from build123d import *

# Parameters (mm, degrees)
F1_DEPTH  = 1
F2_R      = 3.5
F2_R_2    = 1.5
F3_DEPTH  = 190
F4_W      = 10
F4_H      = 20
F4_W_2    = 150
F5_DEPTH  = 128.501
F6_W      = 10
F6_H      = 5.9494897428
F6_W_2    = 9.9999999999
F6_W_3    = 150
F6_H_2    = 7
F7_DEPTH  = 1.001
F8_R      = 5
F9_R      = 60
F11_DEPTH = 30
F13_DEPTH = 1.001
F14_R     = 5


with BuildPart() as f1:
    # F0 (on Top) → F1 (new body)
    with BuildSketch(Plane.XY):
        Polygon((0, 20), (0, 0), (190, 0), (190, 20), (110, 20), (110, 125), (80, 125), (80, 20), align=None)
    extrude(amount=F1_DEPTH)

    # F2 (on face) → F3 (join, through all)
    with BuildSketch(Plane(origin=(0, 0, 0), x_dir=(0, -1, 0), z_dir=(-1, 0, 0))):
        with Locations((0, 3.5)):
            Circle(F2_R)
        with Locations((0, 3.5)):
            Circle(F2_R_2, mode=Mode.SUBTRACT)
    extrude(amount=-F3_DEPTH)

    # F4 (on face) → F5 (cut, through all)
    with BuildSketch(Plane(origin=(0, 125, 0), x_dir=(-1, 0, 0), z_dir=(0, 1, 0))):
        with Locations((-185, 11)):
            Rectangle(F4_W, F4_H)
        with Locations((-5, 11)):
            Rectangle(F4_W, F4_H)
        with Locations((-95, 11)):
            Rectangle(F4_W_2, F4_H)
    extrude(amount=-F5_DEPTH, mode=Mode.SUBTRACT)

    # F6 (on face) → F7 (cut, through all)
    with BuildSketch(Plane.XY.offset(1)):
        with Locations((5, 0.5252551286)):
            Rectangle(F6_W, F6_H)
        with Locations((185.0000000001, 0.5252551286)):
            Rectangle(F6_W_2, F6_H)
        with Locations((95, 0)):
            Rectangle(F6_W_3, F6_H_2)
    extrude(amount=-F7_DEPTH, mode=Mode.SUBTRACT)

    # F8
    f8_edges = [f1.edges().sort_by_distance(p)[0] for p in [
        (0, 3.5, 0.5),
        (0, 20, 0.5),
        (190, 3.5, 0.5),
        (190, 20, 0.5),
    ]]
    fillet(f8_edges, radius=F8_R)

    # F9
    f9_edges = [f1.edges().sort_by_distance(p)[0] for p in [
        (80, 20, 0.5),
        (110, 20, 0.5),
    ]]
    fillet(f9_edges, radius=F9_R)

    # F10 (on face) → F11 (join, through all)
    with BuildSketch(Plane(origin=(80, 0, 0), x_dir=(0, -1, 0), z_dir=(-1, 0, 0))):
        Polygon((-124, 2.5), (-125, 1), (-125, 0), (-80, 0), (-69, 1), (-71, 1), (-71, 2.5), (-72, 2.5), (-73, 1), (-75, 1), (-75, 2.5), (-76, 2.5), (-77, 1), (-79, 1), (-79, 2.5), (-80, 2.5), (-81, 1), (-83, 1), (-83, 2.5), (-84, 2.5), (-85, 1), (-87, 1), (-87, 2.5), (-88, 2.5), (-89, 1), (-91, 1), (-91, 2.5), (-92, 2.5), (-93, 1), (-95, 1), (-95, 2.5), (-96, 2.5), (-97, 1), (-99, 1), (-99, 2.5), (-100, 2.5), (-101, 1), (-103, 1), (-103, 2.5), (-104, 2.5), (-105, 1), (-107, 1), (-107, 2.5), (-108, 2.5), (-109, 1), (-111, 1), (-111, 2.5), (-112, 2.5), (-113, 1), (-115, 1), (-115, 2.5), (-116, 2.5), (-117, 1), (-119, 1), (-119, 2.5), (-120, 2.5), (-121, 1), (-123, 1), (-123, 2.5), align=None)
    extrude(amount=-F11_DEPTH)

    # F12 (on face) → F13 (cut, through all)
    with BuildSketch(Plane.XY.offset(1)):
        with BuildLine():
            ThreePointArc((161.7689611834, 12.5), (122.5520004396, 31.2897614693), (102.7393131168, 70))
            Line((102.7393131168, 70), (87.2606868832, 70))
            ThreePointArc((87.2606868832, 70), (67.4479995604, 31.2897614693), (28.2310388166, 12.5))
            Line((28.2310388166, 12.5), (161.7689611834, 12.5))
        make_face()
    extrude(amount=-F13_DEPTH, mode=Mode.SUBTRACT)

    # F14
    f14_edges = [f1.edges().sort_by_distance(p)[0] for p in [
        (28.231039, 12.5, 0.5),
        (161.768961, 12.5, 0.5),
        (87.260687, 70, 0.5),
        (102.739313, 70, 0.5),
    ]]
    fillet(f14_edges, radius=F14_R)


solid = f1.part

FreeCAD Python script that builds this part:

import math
import FreeCAD as App
import Part
import Sketcher


def edges_at(feature, points):
    """Names of the edges that pass closest to the given points."""
    edges = feature.Shape.Edges
    near = lambda p: min(range(len(edges)), key=lambda i: edges[i].distToShape(Part.Vertex(*p))[0])
    return sorted({f"Edge{near(p) + 1}" for p in points})

doc = App.newDocument("Part")
body = doc.addObject("PartDesign::Body", "Body")

sketch1 = doc.addObject("Sketcher::SketchObject", "Sketch")
body.addObject(sketch1)
sketch1.AttachmentSupport = (doc.XY_Plane, [""])
sketch1.MapMode = "FlatFace"
sketch1.addGeometry(Part.LineSegment(App.Vector(0, 20, 0), App.Vector(0, 0, 0)), False)
sketch1.addGeometry(Part.LineSegment(App.Vector(0, 0, 0), App.Vector(190, 0, 0)), False)
sketch1.addGeometry(Part.LineSegment(App.Vector(190, 0, 0), App.Vector(190, 20, 0)), False)
sketch1.addGeometry(Part.LineSegment(App.Vector(190, 20, 0), App.Vector(110, 20, 0)), False)
sketch1.addGeometry(Part.LineSegment(App.Vector(110, 20, 0), App.Vector(110, 125, 0)), False)
sketch1.addGeometry(Part.LineSegment(App.Vector(110, 125, 0), App.Vector(80, 125, 0)), False)
sketch1.addGeometry(Part.LineSegment(App.Vector(80, 125, 0), App.Vector(80, 20, 0)), False)
sketch1.addGeometry(Part.LineSegment(App.Vector(80, 20, 0), App.Vector(0, 20, 0)), False)
sketch1.addConstraint(Sketcher.Constraint("Coincident", 0, 2, 1, 1))
sketch1.addConstraint(Sketcher.Constraint("Coincident", 1, 2, 2, 1))
sketch1.addConstraint(Sketcher.Constraint("Coincident", 2, 2, 3, 1))
sketch1.addConstraint(Sketcher.Constraint("Coincident", 3, 2, 4, 1))
sketch1.addConstraint(Sketcher.Constraint("Coincident", 4, 2, 5, 1))
sketch1.addConstraint(Sketcher.Constraint("Coincident", 5, 2, 6, 1))
sketch1.addConstraint(Sketcher.Constraint("Coincident", 6, 2, 7, 1))
sketch1.addConstraint(Sketcher.Constraint("Coincident", 7, 2, 0, 1))
sketch1.addConstraint(Sketcher.Constraint("Vertical", 0))
sketch1.addConstraint(Sketcher.Constraint("Horizontal", 1))
sketch1.addConstraint(Sketcher.Constraint("Vertical", 2))
sketch1.addConstraint(Sketcher.Constraint("Horizontal", 3))
sketch1.addConstraint(Sketcher.Constraint("Vertical", 4))
sketch1.addConstraint(Sketcher.Constraint("Horizontal", 5))
sketch1.addConstraint(Sketcher.Constraint("Vertical", 6))
sketch1.addConstraint(Sketcher.Constraint("Horizontal", 7))
sketch1.addConstraint(Sketcher.Constraint("Coincident", 0, 2, -1, 1))
sketch1.addConstraint(Sketcher.Constraint("Horizontal", 3, 2, 6, 2))
sketch1.addConstraint(Sketcher.Constraint("Equal", 3, 7))
sketch1.addConstraint(Sketcher.Constraint("DistanceX", 1, 1, 1, 2, 190.0))
sketch1.addConstraint(Sketcher.Constraint("DistanceX", 3, 2, 3, 1, 80.0))
sketch1.addConstraint(Sketcher.Constraint("DistanceY", 0, 2, 0, 1, 20.0))
sketch1.addConstraint(Sketcher.Constraint("DistanceY", 4, 1, 4, 2, 105.0))
pad1 = doc.addObject("PartDesign::Pad", "Pad")
body.addObject(pad1)
pad1.Profile = sketch1
pad1.Length = 1

sketch2 = doc.addObject("Sketcher::SketchObject", "Sketch001")
body.addObject(sketch2)
sketch2.AttachmentSupport = (doc.YZ_Plane, [""])
sketch2.MapMode = "FlatFace"
sketch2.addGeometry(Part.Circle(App.Vector(0, 3.5, 0), App.Vector(0, 0, 1), 3.5), False)
sketch2.addGeometry(Part.Circle(App.Vector(0, 3.5, 0), App.Vector(0, 0, 1), 1.5), False)
sketch2.addConstraint(Sketcher.Constraint("Coincident", 1, 3, 0, 3))
sketch2.addConstraint(Sketcher.Constraint("PointOnObject", 0, 3, -2))
sketch2.addConstraint(Sketcher.Constraint("Diameter", 0, 7.0))
sketch2.addConstraint(Sketcher.Constraint("Diameter", 1, 3.0))
sketch2.addConstraint(Sketcher.Constraint("DistanceY", -1, 1, 0, 3, 3.5))
pad2 = doc.addObject("PartDesign::Pad", "Pad001")
body.addObject(pad2)
pad2.Profile = sketch2
pad2.Length = 190

sketch3 = doc.addObject("Sketcher::SketchObject", "Sketch002")
body.addObject(sketch3)
sketch3.AttachmentSupport = (doc.XZ_Plane, [""])
sketch3.MapMode = "FlatFace"
sketch3.AttachmentOffset = App.Placement(App.Vector(0, 0, -125), App.Rotation())
sketch3.addGeometry(Part.LineSegment(App.Vector(190, 21, 0), App.Vector(190, 1, 0)), False)
sketch3.addGeometry(Part.LineSegment(App.Vector(190, 1, 0), App.Vector(180, 1, 0)), False)
sketch3.addGeometry(Part.LineSegment(App.Vector(180, 1, 0), App.Vector(180, 21, 0)), False)
sketch3.addGeometry(Part.LineSegment(App.Vector(180, 21, 0), App.Vector(190, 21, 0)), False)
sketch3.addGeometry(Part.LineSegment(App.Vector(10, 21, 0), App.Vector(10, 1, 0)), False)
sketch3.addGeometry(Part.LineSegment(App.Vector(10, 1, 0), App.Vector(0, 1, 0)), False)
sketch3.addGeometry(Part.LineSegment(App.Vector(0, 1, 0), App.Vector(0, 21, 0)), False)
sketch3.addGeometry(Part.LineSegment(App.Vector(0, 21, 0), App.Vector(10, 21, 0)), False)
sketch3.addGeometry(Part.LineSegment(App.Vector(170, 21, 0), App.Vector(170, 1, 0)), False)
sketch3.addGeometry(Part.LineSegment(App.Vector(170, 1, 0), App.Vector(20, 1, 0)), False)
sketch3.addGeometry(Part.LineSegment(App.Vector(20, 1, 0), App.Vector(20, 21, 0)), False)
sketch3.addGeometry(Part.LineSegment(App.Vector(20, 21, 0), App.Vector(170, 21, 0)), False)
sketch3.addConstraint(Sketcher.Constraint("Coincident", 0, 2, 1, 1))
sketch3.addConstraint(Sketcher.Constraint("Coincident", 1, 2, 2, 1))
sketch3.addConstraint(Sketcher.Constraint("Coincident", 2, 2, 3, 1))
sketch3.addConstraint(Sketcher.Constraint("Coincident", 3, 2, 0, 1))
sketch3.addConstraint(Sketcher.Constraint("Coincident", 4, 2, 5, 1))
sketch3.addConstraint(Sketcher.Constraint("Coincident", 5, 2, 6, 1))
sketch3.addConstraint(Sketcher.Constraint("Coincident", 6, 2, 7, 1))
sketch3.addConstraint(Sketcher.Constraint("Coincident", 7, 2, 4, 1))
sketch3.addConstraint(Sketcher.Constraint("Coincident", 8, 2, 9, 1))
sketch3.addConstraint(Sketcher.Constraint("Coincident", 9, 2, 10, 1))
sketch3.addConstraint(Sketcher.Constraint("Coincident", 10, 2, 11, 1))
sketch3.addConstraint(Sketcher.Constraint("Coincident", 11, 2, 8, 1))
sketch3.addConstraint(Sketcher.Constraint("Vertical", 0))
sketch3.addConstraint(Sketcher.Constraint("Horizontal", 1))
sketch3.addConstraint(Sketcher.Constraint("Vertical", 2))
sketch3.addConstraint(Sketcher.Constraint("Horizontal", 3))
sketch3.addConstraint(Sketcher.Constraint("Vertical", 4))
sketch3.addConstraint(Sketcher.Constraint("Horizontal", 5))
sketch3.addConstraint(Sketcher.Constraint("Vertical", 6))
sketch3.addConstraint(Sketcher.Constraint("Horizontal", 7))
sketch3.addConstraint(Sketcher.Constraint("Vertical", 8))
sketch3.addConstraint(Sketcher.Constraint("Horizontal", 9))
sketch3.addConstraint(Sketcher.Constraint("Vertical", 10))
sketch3.addConstraint(Sketcher.Constraint("Horizontal", 11))
sketch3.addConstraint(Sketcher.Constraint("PointOnObject", 5, 2, -2))
sketch3.addConstraint(Sketcher.Constraint("Horizontal", 1, 2, 4, 2))
sketch3.addConstraint(Sketcher.Constraint("Horizontal", 3, 2, 6, 2))
sketch3.addConstraint(Sketcher.Constraint("Horizontal", 5, 2, 8, 2))
sketch3.addConstraint(Sketcher.Constraint("Horizontal", 7, 2, 10, 2))
sketch3.addConstraint(Sketcher.Constraint("Equal", 3, 5))
sketch3.addConstraint(Sketcher.Constraint("DistanceX", 1, 2, 1, 1, 10.0))
sketch3.addConstraint(Sketcher.Constraint("DistanceX", 9, 2, 9, 1, 150.0))
sketch3.addConstraint(Sketcher.Constraint("DistanceY", 0, 2, 0, 1, 20.0))
sketch3.addConstraint(Sketcher.Constraint("DistanceX", -1, 1, 0, 2, 190.0))
sketch3.addConstraint(Sketcher.Constraint("DistanceY", -1, 1, 0, 2, 1.0))
sketch3.addConstraint(Sketcher.Constraint("DistanceX", -1, 1, 8, 2, 170.0))
pocket1 = doc.addObject("PartDesign::Pocket", "Pocket")
body.addObject(pocket1)
pocket1.Profile = sketch3
pocket1.Type = "ThroughAll"
pocket1.Reversed = True

sketch4 = doc.addObject("Sketcher::SketchObject", "Sketch003")
body.addObject(sketch4)
sketch4.AttachmentSupport = (doc.XY_Plane, [""])
sketch4.MapMode = "FlatFace"
sketch4.AttachmentOffset = App.Placement(App.Vector(0, 0, 1), App.Rotation())
sketch4.addGeometry(Part.LineSegment(App.Vector(0, 4, 0), App.Vector(0, -2, 0)), False)
sketch4.addGeometry(Part.LineSegment(App.Vector(0, -2, 0), App.Vector(10, -2, 0)), False)
sketch4.addGeometry(Part.LineSegment(App.Vector(10, -2, 0), App.Vector(10, 4, 0)), False)
sketch4.addGeometry(Part.LineSegment(App.Vector(10, 4, 0), App.Vector(0, 4, 0)), False)
sketch4.addGeometry(Part.LineSegment(App.Vector(180, 4, 0), App.Vector(180, -2, 0)), False)
sketch4.addGeometry(Part.LineSegment(App.Vector(180, -2, 0), App.Vector(190, -2, 0)), False)
sketch4.addGeometry(Part.LineSegment(App.Vector(190, -2, 0), App.Vector(190, 4, 0)), False)
sketch4.addGeometry(Part.LineSegment(App.Vector(190, 4, 0), App.Vector(180, 4, 0)), False)
sketch4.addGeometry(Part.LineSegment(App.Vector(20, 4, 0), App.Vector(20, -4, 0)), False)
sketch4.addGeometry(Part.LineSegment(App.Vector(20, -4, 0), App.Vector(170, -4, 0)), False)
sketch4.addGeometry(Part.LineSegment(App.Vector(170, -4, 0), App.Vector(170, 4, 0)), False)
sketch4.addGeometry(Part.LineSegment(App.Vector(170, 4, 0), App.Vector(20, 4, 0)), False)
sketch4.addConstraint(Sketcher.Constraint("Coincident", 0, 2, 1, 1))
sketch4.addConstraint(Sketcher.Constraint("Coincident", 1, 2, 2, 1))
sketch4.addConstraint(Sketcher.Constraint("Coincident", 2, 2, 3, 1))
sketch4.addConstraint(Sketcher.Constraint("Coincident", 3, 2, 0, 1))
sketch4.addConstraint(Sketcher.Constraint("Coincident", 4, 2, 5, 1))
sketch4.addConstraint(Sketcher.Constraint("Coincident", 5, 2, 6, 1))
sketch4.addConstraint(Sketcher.Constraint("Coincident", 6, 2, 7, 1))
sketch4.addConstraint(Sketcher.Constraint("Coincident", 7, 2, 4, 1))
sketch4.addConstraint(Sketcher.Constraint("Coincident", 8, 2, 9, 1))
sketch4.addConstraint(Sketcher.Constraint("Coincident", 9, 2, 10, 1))
sketch4.addConstraint(Sketcher.Constraint("Coincident", 10, 2, 11, 1))
sketch4.addConstraint(Sketcher.Constraint("Coincident", 11, 2, 8, 1))
sketch4.addConstraint(Sketcher.Constraint("Vertical", 0))
sketch4.addConstraint(Sketcher.Constraint("Horizontal", 1))
sketch4.addConstraint(Sketcher.Constraint("Vertical", 2))
sketch4.addConstraint(Sketcher.Constraint("Horizontal", 3))
sketch4.addConstraint(Sketcher.Constraint("Vertical", 4))
sketch4.addConstraint(Sketcher.Constraint("Horizontal", 5))
sketch4.addConstraint(Sketcher.Constraint("Vertical", 6))
sketch4.addConstraint(Sketcher.Constraint("Horizontal", 7))
sketch4.addConstraint(Sketcher.Constraint("Vertical", 8))
sketch4.addConstraint(Sketcher.Constraint("Horizontal", 9))
sketch4.addConstraint(Sketcher.Constraint("Vertical", 10))
sketch4.addConstraint(Sketcher.Constraint("Horizontal", 11))
sketch4.addConstraint(Sketcher.Constraint("PointOnObject", 0, 2, -2))
sketch4.addConstraint(Sketcher.Constraint("Horizontal", 1, 2, 4, 2))
sketch4.addConstraint(Sketcher.Constraint("Horizontal", 3, 2, 6, 2))
sketch4.addConstraint(Sketcher.Constraint("Horizontal", 7, 2, 10, 2))
sketch4.addConstraint(Sketcher.Constraint("Equal", 3, 5))
sketch4.addConstraint(Sketcher.Constraint("DistanceX", 1, 1, 1, 2, 10.0))
sketch4.addConstraint(Sketcher.Constraint("DistanceX", 9, 1, 9, 2, 150.0))
sketch4.addConstraint(Sketcher.Constraint("DistanceY", 8, 2, 8, 1, 7.0))
sketch4.addConstraint(Sketcher.Constraint("DistanceX", -1, 1, 4, 2, 180.0))
sketch4.addConstraint(Sketcher.Constraint("DistanceX", -1, 1, 8, 2, 20.0))
sketch4.addConstraint(Sketcher.Constraint("DistanceY", -1, 1, 2, 2, 3.5))
sketch4.addConstraint(Sketcher.Constraint("DistanceY", 0, 2, 0, 1, 5.94949))
pocket2 = doc.addObject("PartDesign::Pocket", "Pocket001")
body.addObject(pocket2)
pocket2.Profile = sketch4
pocket2.Type = "ThroughAll"
doc.recompute()

fillet = doc.addObject("PartDesign::Fillet", "Fillet")
body.addObject(fillet)
fillet.Base = (pocket2, edges_at(pocket2, [
    (0, 3.5, 0.5),
    (0, 20, 0.5),
    (190, 3.5, 0.5),
    (190, 20, 0.5),
]))
fillet.Radius = 5
doc.recompute()

fillet2 = doc.addObject("PartDesign::Fillet", "Fillet001")
body.addObject(fillet2)
fillet2.Base = (fillet, edges_at(fillet, [(80, 20, 0.5), (110, 20, 0.5)]))
fillet2.Radius = 60

sketch5 = doc.addObject("Sketcher::SketchObject", "Sketch004")
body.addObject(sketch5)
sketch5.AttachmentSupport = (doc.YZ_Plane, [""])
sketch5.MapMode = "FlatFace"
sketch5.AttachmentOffset = App.Placement(App.Vector(0, 0, 80), App.Rotation())
sketch5.addGeometry(Part.LineSegment(App.Vector(124, 2.5, 0), App.Vector(125, 1, 0)), False)
sketch5.addGeometry(Part.LineSegment(App.Vector(125, 1, 0), App.Vector(125, 0, 0)), False)
sketch5.addGeometry(Part.LineSegment(App.Vector(125, 0, 0), App.Vector(80, 0, 0)), False)
sketch5.addGeometry(Part.LineSegment(App.Vector(80, 0, 0), App.Vector(69, 1, 0)), False)
sketch5.addGeometry(Part.LineSegment(App.Vector(69, 1, 0), App.Vector(71, 1, 0)), False)
sketch5.addGeometry(Part.LineSegment(App.Vector(71, 1, 0), App.Vector(71, 2.5, 0)), False)
sketch5.addGeometry(Part.LineSegment(App.Vector(71, 2.5, 0), App.Vector(72, 2.5, 0)), False)
sketch5.addGeometry(Part.LineSegment(App.Vector(72, 2.5, 0), App.Vector(73, 1, 0)), False)
sketch5.addGeometry(Part.LineSegment(App.Vector(73, 1, 0), App.Vector(75, 1, 0)), False)
sketch5.addGeometry(Part.LineSegment(App.Vector(75, 1, 0), App.Vector(75, 2.5, 0)), False)
sketch5.addGeometry(Part.LineSegment(App.Vector(75, 2.5, 0), App.Vector(76, 2.5, 0)), False)
sketch5.addGeometry(Part.LineSegment(App.Vector(76, 2.5, 0), App.Vector(77, 1, 0)), False)
sketch5.addGeometry(Part.LineSegment(App.Vector(77, 1, 0), App.Vector(79, 1, 0)), False)
sketch5.addGeometry(Part.LineSegment(App.Vector(79, 1, 0), App.Vector(79, 2.5, 0)), False)
sketch5.addGeometry(Part.LineSegment(App.Vector(79, 2.5, 0), App.Vector(80, 2.5, 0)), False)
sketch5.addGeometry(Part.LineSegment(App.Vector(80, 2.5, 0), App.Vector(81, 1, 0)), False)
sketch5.addGeometry(Part.LineSegment(App.Vector(81, 1, 0), App.Vector(83, 1, 0)), False)
sketch5.addGeometry(Part.LineSegment(App.Vector(83, 1, 0), App.Vector(83, 2.5, 0)), False)
sketch5.addGeometry(Part.LineSegment(App.Vector(83, 2.5, 0), App.Vector(84, 2.5, 0)), False)
sketch5.addGeometry(Part.LineSegment(App.Vector(84, 2.5, 0), App.Vector(85, 1, 0)), False)
sketch5.addGeometry(Part.LineSegment(App.Vector(85, 1, 0), App.Vector(87, 1, 0)), False)
sketch5.addGeometry(Part.LineSegment(App.Vector(87, 1, 0), App.Vector(87, 2.5, 0)), False)
sketch5.addGeometry(Part.LineSegment(App.Vector(87, 2.5, 0), App.Vector(88, 2.5, 0)), False)
sketch5.addGeometry(Part.LineSegment(App.Vector(88, 2.5, 0), App.Vector(89, 1, 0)), False)
sketch5.addGeometry(Part.LineSegment(App.Vector(89, 1, 0), App.Vector(91, 1, 0)), False)
sketch5.addGeometry(Part.LineSegment(App.Vector(91, 1, 0), App.Vector(91, 2.5, 0)), False)
sketch5.addGeometry(Part.LineSegment(App.Vector(91, 2.5, 0), App.Vector(92, 2.5, 0)), False)
sketch5.addGeometry(Part.LineSegment(App.Vector(92, 2.5, 0), App.Vector(93, 1, 0)), False)
sketch5.addGeometry(Part.LineSegment(App.Vector(93, 1, 0), App.Vector(95, 1, 0)), False)
sketch5.addGeometry(Part.LineSegment(App.Vector(95, 1, 0), App.Vector(95, 2.5, 0)), False)
sketch5.addGeometry(Part.LineSegment(App.Vector(95, 2.5, 0), App.Vector(96, 2.5, 0)), False)
sketch5.addGeometry(Part.LineSegment(App.Vector(96, 2.5, 0), App.Vector(97, 1, 0)), False)
sketch5.addGeometry(Part.LineSegment(App.Vector(97, 1, 0), App.Vector(99, 1, 0)), False)
sketch5.addGeometry(Part.LineSegment(App.Vector(99, 1, 0), App.Vector(99, 2.5, 0)), False)
sketch5.addGeometry(Part.LineSegment(App.Vector(99, 2.5, 0), App.Vector(100, 2.5, 0)), False)
sketch5.addGeometry(Part.LineSegment(App.Vector(100, 2.5, 0), App.Vector(101, 1, 0)), False)
sketch5.addGeometry(Part.LineSegment(App.Vector(101, 1, 0), App.Vector(103, 1, 0)), False)
sketch5.addGeometry(Part.LineSegment(App.Vector(103, 1, 0), App.Vector(103, 2.5, 0)), False)
sketch5.addGeometry(Part.LineSegment(App.Vector(103, 2.5, 0), App.Vector(104, 2.5, 0)), False)
sketch5.addGeometry(Part.LineSegment(App.Vector(104, 2.5, 0), App.Vector(105, 1, 0)), False)
sketch5.addGeometry(Part.LineSegment(App.Vector(105, 1, 0), App.Vector(107, 1, 0)), False)
sketch5.addGeometry(Part.LineSegment(App.Vector(107, 1, 0), App.Vector(107, 2.5, 0)), False)
sketch5.addGeometry(Part.LineSegment(App.Vector(107, 2.5, 0), App.Vector(108, 2.5, 0)), False)
sketch5.addGeometry(Part.LineSegment(App.Vector(108, 2.5, 0), App.Vector(109, 1, 0)), False)
sketch5.addGeometry(Part.LineSegment(App.Vector(109, 1, 0), App.Vector(111, 1, 0)), False)
sketch5.addGeometry(Part.LineSegment(App.Vector(111, 1, 0), App.Vector(111, 2.5, 0)), False)
sketch5.addGeometry(Part.LineSegment(App.Vector(111, 2.5, 0), App.Vector(112, 2.5, 0)), False)
sketch5.addGeometry(Part.LineSegment(App.Vector(112, 2.5, 0), App.Vector(113, 1, 0)), False)
sketch5.addGeometry(Part.LineSegment(App.Vector(113, 1, 0), App.Vector(115, 1, 0)), False)
sketch5.addGeometry(Part.LineSegment(App.Vector(115, 1, 0), App.Vector(115, 2.5, 0)), False)
sketch5.addGeometry(Part.LineSegment(App.Vector(115, 2.5, 0), App.Vector(116, 2.5, 0)), False)
sketch5.addGeometry(Part.LineSegment(App.Vector(116, 2.5, 0), App.Vector(117, 1, 0)), False)
sketch5.addGeometry(Part.LineSegment(App.Vector(117, 1, 0), App.Vector(119, 1, 0)), False)
sketch5.addGeometry(Part.LineSegment(App.Vector(119, 1, 0), App.Vector(119, 2.5, 0)), False)
sketch5.addGeometry(Part.LineSegment(App.Vector(119, 2.5, 0), App.Vector(120, 2.5, 0)), False)
sketch5.addGeometry(Part.LineSegment(App.Vector(120, 2.5, 0), App.Vector(121, 1, 0)), False)
sketch5.addGeometry(Part.LineSegment(App.Vector(121, 1, 0), App.Vector(123, 1, 0)), False)
sketch5.addGeometry(Part.LineSegment(App.Vector(123, 1, 0), App.Vector(123, 2.5, 0)), False)
sketch5.addGeometry(Part.LineSegment(App.Vector(123, 2.5, 0), App.Vector(124, 2.5, 0)), False)
sketch5.addConstraint(Sketcher.Constraint("Coincident", 0, 2, 1, 1))
sketch5.addConstraint(Sketcher.Constraint("Coincident", 1, 2, 2, 1))
sketch5.addConstraint(Sketcher.Constraint("Coincident", 2, 2, 3, 1))
sketch5.addConstraint(Sketcher.Constraint("Coincident", 3, 2, 4, 1))
sketch5.addConstraint(Sketcher.Constraint("Coincident", 4, 2, 5, 1))
sketch5.addConstraint(Sketcher.Constraint("Coincident", 5, 2, 6, 1))
sketch5.addConstraint(Sketcher.Constraint("Coincident", 6, 2, 7, 1))
sketch5.addConstraint(Sketcher.Constraint("Coincident", 7, 2, 8, 1))
sketch5.addConstraint(Sketcher.Constraint("Coincident", 8, 2, 9, 1))
sketch5.addConstraint(Sketcher.Constraint("Coincident", 9, 2, 10, 1))
sketch5.addConstraint(Sketcher.Constraint("Coincident", 10, 2, 11, 1))
sketch5.addConstraint(Sketcher.Constraint("Coincident", 11, 2, 12, 1))
sketch5.addConstraint(Sketcher.Constraint("Coincident", 12, 2, 13, 1))
sketch5.addConstraint(Sketcher.Constraint("Coincident", 13, 2, 14, 1))
sketch5.addConstraint(Sketcher.Constraint("Coincident", 14, 2, 15, 1))
sketch5.addConstraint(Sketcher.Constraint("Coincident", 15, 2, 16, 1))
sketch5.addConstraint(Sketcher.Constraint("Coincident", 16, 2, 17, 1))
sketch5.addConstraint(Sketcher.Constraint("Coincident", 17, 2, 18, 1))
sketch5.addConstraint(Sketcher.Constraint("Coincident", 18, 2, 19, 1))
sketch5.addConstraint(Sketcher.Constraint("Coincident", 19, 2, 20, 1))
sketch5.addConstraint(Sketcher.Constraint("Coincident", 20, 2, 21, 1))
sketch5.addConstraint(Sketcher.Constraint("Coincident", 21, 2, 22, 1))
sketch5.addConstraint(Sketcher.Constraint("Coincident", 22, 2, 23, 1))
sketch5.addConstraint(Sketcher.Constraint("Coincident", 23, 2, 24, 1))
sketch5.addConstraint(Sketcher.Constraint("Coincident", 24, 2, 25, 1))
sketch5.addConstraint(Sketcher.Constraint("Coincident", 25, 2, 26, 1))
sketch5.addConstraint(Sketcher.Constraint("Coincident", 26, 2, 27, 1))
sketch5.addConstraint(Sketcher.Constraint("Coincident", 27, 2, 28, 1))
sketch5.addConstraint(Sketcher.Constraint("Coincident", 28, 2, 29, 1))
sketch5.addConstraint(Sketcher.Constraint("Coincident", 29, 2, 30, 1))
sketch5.addConstraint(Sketcher.Constraint("Coincident", 30, 2, 31, 1))
sketch5.addConstraint(Sketcher.Constraint("Coincident", 31, 2, 32, 1))
sketch5.addConstraint(Sketcher.Constraint("Coincident", 32, 2, 33, 1))
sketch5.addConstraint(Sketcher.Constraint("Coincident", 33, 2, 34, 1))
sketch5.addConstraint(Sketcher.Constraint("Coincident", 34, 2, 35, 1))
sketch5.addConstraint(Sketcher.Constraint("Coincident", 35, 2, 36, 1))
sketch5.addConstraint(Sketcher.Constraint("Coincident", 36, 2, 37, 1))
sketch5.addConstraint(Sketcher.Constraint("Coincident", 37, 2, 38, 1))
sketch5.addConstraint(Sketcher.Constraint("Coincident", 38, 2, 39, 1))
sketch5.addConstraint(Sketcher.Constraint("Coincident", 39, 2, 40, 1))
sketch5.addConstraint(Sketcher.Constraint("Coincident", 40, 2, 41, 1))
sketch5.addConstraint(Sketcher.Constraint("Coincident", 41, 2, 42, 1))
sketch5.addConstraint(Sketcher.Constraint("Coincident", 42, 2, 43, 1))
sketch5.addConstraint(Sketcher.Constraint("Coincident", 43, 2, 44, 1))
sketch5.addConstraint(Sketcher.Constraint("Coincident", 44, 2, 45, 1))
sketch5.addConstraint(Sketcher.Constraint("Coincident", 45, 2, 46, 1))
sketch5.addConstraint(Sketcher.Constraint("Coincident", 46, 2, 47, 1))
sketch5.addConstraint(Sketcher.Constraint("Coincident", 47, 2, 48, 1))
sketch5.addConstraint(Sketcher.Constraint("Coincident", 48, 2, 49, 1))
sketch5.addConstraint(Sketcher.Constraint("Coincident", 49, 2, 50, 1))
sketch5.addConstraint(Sketcher.Constraint("Coincident", 50, 2, 51, 1))
sketch5.addConstraint(Sketcher.Constraint("Coincident", 51, 2, 52, 1))
sketch5.addConstraint(Sketcher.Constraint("Coincident", 52, 2, 53, 1))
sketch5.addConstraint(Sketcher.Constraint("Coincident", 53, 2, 54, 1))
sketch5.addConstraint(Sketcher.Constraint("Coincident", 54, 2, 55, 1))
sketch5.addConstraint(Sketcher.Constraint("Coincident", 55, 2, 56, 1))
sketch5.addConstraint(Sketcher.Constraint("Coincident", 56, 2, 57, 1))
sketch5.addConstraint(Sketcher.Constraint("Coincident", 57, 2, 58, 1))
sketch5.addConstraint(Sketcher.Constraint("Coincident", 58, 2, 0, 1))
sketch5.addConstraint(Sketcher.Constraint("Vertical", 1))
sketch5.addConstraint(Sketcher.Constraint("Horizontal", 2))
sketch5.addConstraint(Sketcher.Constraint("Horizontal", 4))
sketch5.addConstraint(Sketcher.Constraint("Vertical", 5))
sketch5.addConstraint(Sketcher.Constraint("Horizontal", 6))
sketch5.addConstraint(Sketcher.Constraint("Horizontal", 8))
sketch5.addConstraint(Sketcher.Constraint("Vertical", 9))
sketch5.addConstraint(Sketcher.Constraint("Horizontal", 10))
sketch5.addConstraint(Sketcher.Constraint("Horizontal", 12))
sketch5.addConstraint(Sketcher.Constraint("Vertical", 13))
sketch5.addConstraint(Sketcher.Constraint("Horizontal", 14))
sketch5.addConstraint(Sketcher.Constraint("Horizontal", 16))
sketch5.addConstraint(Sketcher.Constraint("Vertical", 17))
sketch5.addConstraint(Sketcher.Constraint("Horizontal", 18))
sketch5.addConstraint(Sketcher.Constraint("Horizontal", 20))
sketch5.addConstraint(Sketcher.Constraint("Vertical", 21))
sketch5.addConstraint(Sketcher.Constraint("Horizontal", 22))
sketch5.addConstraint(Sketcher.Constraint("Horizontal", 24))
sketch5.addConstraint(Sketcher.Constraint("Vertical", 25))
sketch5.addConstraint(Sketcher.Constraint("Horizontal", 26))
sketch5.addConstraint(Sketcher.Constraint("Horizontal", 28))
sketch5.addConstraint(Sketcher.Constraint("Vertical", 29))
sketch5.addConstraint(Sketcher.Constraint("Horizontal", 30))
sketch5.addConstraint(Sketcher.Constraint("Horizontal", 32))
sketch5.addConstraint(Sketcher.Constraint("Vertical", 33))
sketch5.addConstraint(Sketcher.Constraint("Horizontal", 34))
sketch5.addConstraint(Sketcher.Constraint("Horizontal", 36))
sketch5.addConstraint(Sketcher.Constraint("Vertical", 37))
sketch5.addConstraint(Sketcher.Constraint("Horizontal", 38))
sketch5.addConstraint(Sketcher.Constraint("Horizontal", 40))
sketch5.addConstraint(Sketcher.Constraint("Vertical", 41))
sketch5.addConstraint(Sketcher.Constraint("Horizontal", 42))
sketch5.addConstraint(Sketcher.Constraint("Horizontal", 44))
sketch5.addConstraint(Sketcher.Constraint("Vertical", 45))
sketch5.addConstraint(Sketcher.Constraint("Horizontal", 46))
sketch5.addConstraint(Sketcher.Constraint("Horizontal", 48))
sketch5.addConstraint(Sketcher.Constraint("Vertical", 49))
sketch5.addConstraint(Sketcher.Constraint("Horizontal", 50))
sketch5.addConstraint(Sketcher.Constraint("Horizontal", 52))
sketch5.addConstraint(Sketcher.Constraint("Vertical", 53))
sketch5.addConstraint(Sketcher.Constraint("Horizontal", 54))
sketch5.addConstraint(Sketcher.Constraint("Horizontal", 56))
sketch5.addConstraint(Sketcher.Constraint("Vertical", 57))
sketch5.addConstraint(Sketcher.Constraint("Horizontal", 58))
sketch5.addConstraint(Sketcher.Constraint("PointOnObject", 1, 2, -1))
sketch5.addConstraint(Sketcher.Constraint("Parallel", 0, 7))
sketch5.addConstraint(Sketcher.Constraint("Parallel", 7, 11))
sketch5.addConstraint(Sketcher.Constraint("Parallel", 11, 15))
sketch5.addConstraint(Sketcher.Constraint("Parallel", 15, 19))
sketch5.addConstraint(Sketcher.Constraint("Parallel", 19, 23))
sketch5.addConstraint(Sketcher.Constraint("Parallel", 23, 27))
sketch5.addConstraint(Sketcher.Constraint("Parallel", 27, 31))
sketch5.addConstraint(Sketcher.Constraint("Parallel", 31, 35))
sketch5.addConstraint(Sketcher.Constraint("Parallel", 35, 39))
sketch5.addConstraint(Sketcher.Constraint("Parallel", 39, 43))
sketch5.addConstraint(Sketcher.Constraint("Parallel", 43, 47))
sketch5.addConstraint(Sketcher.Constraint("Parallel", 47, 51))
sketch5.addConstraint(Sketcher.Constraint("Parallel", 51, 55))
sketch5.addConstraint(Sketcher.Constraint("Horizontal", 0, 2, 3, 2))
sketch5.addConstraint(Sketcher.Constraint("Horizontal", 4, 2, 7, 2))
sketch5.addConstraint(Sketcher.Constraint("Horizontal", 6, 2, 9, 2))
sketch5.addConstraint(Sketcher.Constraint("Horizontal", 8, 2, 11, 2))
sketch5.addConstraint(Sketcher.Constraint("Horizontal", 10, 2, 13, 2))
sketch5.addConstraint(Sketcher.Constraint("Horizontal", 12, 2, 15, 2))
sketch5.addConstraint(Sketcher.Constraint("Horizontal", 14, 2, 17, 2))
sketch5.addConstraint(Sketcher.Constraint("Horizontal", 16, 2, 19, 2))
sketch5.addConstraint(Sketcher.Constraint("Horizontal", 18, 2, 21, 2))
sketch5.addConstraint(Sketcher.Constraint("Horizontal", 20, 2, 23, 2))
sketch5.addConstraint(Sketcher.Constraint("Horizontal", 22, 2, 25, 2))
sketch5.addConstraint(Sketcher.Constraint("Horizontal", 24, 2, 27, 2))
sketch5.addConstraint(Sketcher.Constraint("Horizontal", 26, 2, 29, 2))
sketch5.addConstraint(Sketcher.Constraint("Horizontal", 28, 2, 31, 2))
sketch5.addConstraint(Sketcher.Constraint("Horizontal", 30, 2, 33, 2))
sketch5.addConstraint(Sketcher.Constraint("Horizontal", 32, 2, 35, 2))
sketch5.addConstraint(Sketcher.Constraint("Horizontal", 34, 2, 37, 2))
sketch5.addConstraint(Sketcher.Constraint("Horizontal", 36, 2, 39, 2))
sketch5.addConstraint(Sketcher.Constraint("Horizontal", 38, 2, 41, 2))
sketch5.addConstraint(Sketcher.Constraint("Horizontal", 40, 2, 43, 2))
sketch5.addConstraint(Sketcher.Constraint("Horizontal", 42, 2, 45, 2))
sketch5.addConstraint(Sketcher.Constraint("Horizontal", 44, 2, 47, 2))
sketch5.addConstraint(Sketcher.Constraint("Horizontal", 46, 2, 49, 2))
sketch5.addConstraint(Sketcher.Constraint("Horizontal", 48, 2, 51, 2))
sketch5.addConstraint(Sketcher.Constraint("Horizontal", 50, 2, 53, 2))
sketch5.addConstraint(Sketcher.Constraint("Horizontal", 52, 2, 55, 2))
sketch5.addConstraint(Sketcher.Constraint("Horizontal", 54, 2, 57, 2))
sketch5.addConstraint(Sketcher.Constraint("Vertical", 2, 2, 14, 2))
sketch5.addConstraint(Sketcher.Constraint("Equal", 4, 8))
sketch5.addConstraint(Sketcher.Constraint("Equal", 6, 10))
sketch5.addConstraint(Sketcher.Constraint("Equal", 8, 12))
sketch5.addConstraint(Sketcher.Constraint("Equal", 10, 14))
sketch5.addConstraint(Sketcher.Constraint("Equal", 12, 16))
sketch5.addConstraint(Sketcher.Constraint("Equal", 14, 18))
sketch5.addConstraint(Sketcher.Constraint("Equal", 16, 20))
sketch5.addConstraint(Sketcher.Constraint("Equal", 18, 22))
sketch5.addConstraint(Sketcher.Constraint("Equal", 20, 24))
sketch5.addConstraint(Sketcher.Constraint("Equal", 22, 26))
sketch5.addConstraint(Sketcher.Constraint("Equal", 24, 28))
sketch5.addConstraint(Sketcher.Constraint("Equal", 26, 30))
sketch5.addConstraint(Sketcher.Constraint("Equal", 28, 32))
sketch5.addConstraint(Sketcher.Constraint("Equal", 30, 34))
sketch5.addConstraint(Sketcher.Constraint("Equal", 32, 36))
sketch5.addConstraint(Sketcher.Constraint("Equal", 34, 38))
sketch5.addConstraint(Sketcher.Constraint("Equal", 36, 40))
sketch5.addConstraint(Sketcher.Constraint("Equal", 38, 42))
sketch5.addConstraint(Sketcher.Constraint("Equal", 40, 44))
sketch5.addConstraint(Sketcher.Constraint("Equal", 42, 46))
sketch5.addConstraint(Sketcher.Constraint("Equal", 44, 48))
sketch5.addConstraint(Sketcher.Constraint("Equal", 46, 50))
sketch5.addConstraint(Sketcher.Constraint("Equal", 48, 52))
sketch5.addConstraint(Sketcher.Constraint("Equal", 50, 54))
sketch5.addConstraint(Sketcher.Constraint("Equal", 52, 56))
sketch5.addConstraint(Sketcher.Constraint("Equal", 54, 58))
sketch5.addConstraint(Sketcher.Constraint("Equal", 58, 1))
sketch5.addConstraint(Sketcher.Constraint("DistanceX", 2, 2, 2, 1, 45.0))
sketch5.addConstraint(Sketcher.Constraint("DistanceX", 4, 1, 4, 2, 2.0))
sketch5.addConstraint(Sketcher.Constraint("DistanceX", 6, 1, 6, 2, 1.0))
sketch5.addConstraint(Sketcher.Constraint("DistanceY", 5, 1, 5, 2, 1.5))
sketch5.addConstraint(Sketcher.Constraint("DistanceX", -1, 1, 0, 2, 125.0))
pad3 = doc.addObject("PartDesign::Pad", "Pad002")
body.addObject(pad3)
pad3.Profile = sketch5
pad3.Type = "UpToLast"

sketch6 = doc.addObject("Sketcher::SketchObject", "Sketch005")
body.addObject(sketch6)
sketch6.AttachmentSupport = (doc.XY_Plane, [""])
sketch6.MapMode = "FlatFace"
sketch6.AttachmentOffset = App.Placement(App.Vector(0, 0, 1), App.Rotation())
sketch6.addGeometry(Part.ArcOfCircle(Part.Circle(App.Vector(170, 80, 0), App.Vector(0, 0, 1), 68), math.radians(-172), math.radians(-97)), False)
sketch6.addGeometry(Part.LineSegment(App.Vector(103, 70, 0), App.Vector(87, 70, 0)), False)
sketch6.addGeometry(Part.ArcOfCircle(Part.Circle(App.Vector(20, 80, 0), App.Vector(0, 0, 1), 68), math.radians(-83), math.radians(-8)), False)
sketch6.addGeometry(Part.LineSegment(App.Vector(28, 12, 0), App.Vector(162, 12, 0)), False)
sketch6.addConstraint(Sketcher.Constraint("Coincident", 0, 1, 1, 1))
sketch6.addConstraint(Sketcher.Constraint("Coincident", 1, 2, 2, 2))
sketch6.addConstraint(Sketcher.Constraint("Coincident", 2, 1, 3, 1))
sketch6.addConstraint(Sketcher.Constraint("Coincident", 3, 2, 0, 2))
sketch6.addConstraint(Sketcher.Constraint("Horizontal", 1))
sketch6.addConstraint(Sketcher.Constraint("Horizontal", 3))
sketch6.addConstraint(Sketcher.Constraint("Equal", 0, 2))
sketch6.addConstraint(Sketcher.Constraint("Horizontal", 0, 3, 2, 3))
sketch6.addConstraint(Sketcher.Constraint("Radius", 0, 68.0))
sketch6.addConstraint(Sketcher.Constraint("DistanceX", -1, 1, 0, 3, 170.0))
sketch6.addConstraint(Sketcher.Constraint("DistanceY", -1, 1, 0, 3, 80.0))
sketch6.addConstraint(Sketcher.Constraint("DistanceX", -1, 1, 2, 3, 20.0))
sketch6.addConstraint(Sketcher.Constraint("DistanceY", -1, 1, 0, 1, 70.0))
sketch6.addConstraint(Sketcher.Constraint("DistanceY", -1, 1, 2, 1, 12.5))
pocket3 = doc.addObject("PartDesign::Pocket", "Pocket002")
body.addObject(pocket3)
pocket3.Profile = sketch6
pocket3.Type = "ThroughAll"
doc.recompute()

fillet3 = doc.addObject("PartDesign::Fillet", "Fillet002")
body.addObject(fillet3)
fillet3.Base = (pocket3, edges_at(pocket3, [
    (28.231, 12.5, 0.5),
    (161.769, 12.5, 0.5),
    (87.261, 70, 0.5),
    (102.739, 70, 0.5),
]))
fillet3.Radius = 5

doc.recompute()
